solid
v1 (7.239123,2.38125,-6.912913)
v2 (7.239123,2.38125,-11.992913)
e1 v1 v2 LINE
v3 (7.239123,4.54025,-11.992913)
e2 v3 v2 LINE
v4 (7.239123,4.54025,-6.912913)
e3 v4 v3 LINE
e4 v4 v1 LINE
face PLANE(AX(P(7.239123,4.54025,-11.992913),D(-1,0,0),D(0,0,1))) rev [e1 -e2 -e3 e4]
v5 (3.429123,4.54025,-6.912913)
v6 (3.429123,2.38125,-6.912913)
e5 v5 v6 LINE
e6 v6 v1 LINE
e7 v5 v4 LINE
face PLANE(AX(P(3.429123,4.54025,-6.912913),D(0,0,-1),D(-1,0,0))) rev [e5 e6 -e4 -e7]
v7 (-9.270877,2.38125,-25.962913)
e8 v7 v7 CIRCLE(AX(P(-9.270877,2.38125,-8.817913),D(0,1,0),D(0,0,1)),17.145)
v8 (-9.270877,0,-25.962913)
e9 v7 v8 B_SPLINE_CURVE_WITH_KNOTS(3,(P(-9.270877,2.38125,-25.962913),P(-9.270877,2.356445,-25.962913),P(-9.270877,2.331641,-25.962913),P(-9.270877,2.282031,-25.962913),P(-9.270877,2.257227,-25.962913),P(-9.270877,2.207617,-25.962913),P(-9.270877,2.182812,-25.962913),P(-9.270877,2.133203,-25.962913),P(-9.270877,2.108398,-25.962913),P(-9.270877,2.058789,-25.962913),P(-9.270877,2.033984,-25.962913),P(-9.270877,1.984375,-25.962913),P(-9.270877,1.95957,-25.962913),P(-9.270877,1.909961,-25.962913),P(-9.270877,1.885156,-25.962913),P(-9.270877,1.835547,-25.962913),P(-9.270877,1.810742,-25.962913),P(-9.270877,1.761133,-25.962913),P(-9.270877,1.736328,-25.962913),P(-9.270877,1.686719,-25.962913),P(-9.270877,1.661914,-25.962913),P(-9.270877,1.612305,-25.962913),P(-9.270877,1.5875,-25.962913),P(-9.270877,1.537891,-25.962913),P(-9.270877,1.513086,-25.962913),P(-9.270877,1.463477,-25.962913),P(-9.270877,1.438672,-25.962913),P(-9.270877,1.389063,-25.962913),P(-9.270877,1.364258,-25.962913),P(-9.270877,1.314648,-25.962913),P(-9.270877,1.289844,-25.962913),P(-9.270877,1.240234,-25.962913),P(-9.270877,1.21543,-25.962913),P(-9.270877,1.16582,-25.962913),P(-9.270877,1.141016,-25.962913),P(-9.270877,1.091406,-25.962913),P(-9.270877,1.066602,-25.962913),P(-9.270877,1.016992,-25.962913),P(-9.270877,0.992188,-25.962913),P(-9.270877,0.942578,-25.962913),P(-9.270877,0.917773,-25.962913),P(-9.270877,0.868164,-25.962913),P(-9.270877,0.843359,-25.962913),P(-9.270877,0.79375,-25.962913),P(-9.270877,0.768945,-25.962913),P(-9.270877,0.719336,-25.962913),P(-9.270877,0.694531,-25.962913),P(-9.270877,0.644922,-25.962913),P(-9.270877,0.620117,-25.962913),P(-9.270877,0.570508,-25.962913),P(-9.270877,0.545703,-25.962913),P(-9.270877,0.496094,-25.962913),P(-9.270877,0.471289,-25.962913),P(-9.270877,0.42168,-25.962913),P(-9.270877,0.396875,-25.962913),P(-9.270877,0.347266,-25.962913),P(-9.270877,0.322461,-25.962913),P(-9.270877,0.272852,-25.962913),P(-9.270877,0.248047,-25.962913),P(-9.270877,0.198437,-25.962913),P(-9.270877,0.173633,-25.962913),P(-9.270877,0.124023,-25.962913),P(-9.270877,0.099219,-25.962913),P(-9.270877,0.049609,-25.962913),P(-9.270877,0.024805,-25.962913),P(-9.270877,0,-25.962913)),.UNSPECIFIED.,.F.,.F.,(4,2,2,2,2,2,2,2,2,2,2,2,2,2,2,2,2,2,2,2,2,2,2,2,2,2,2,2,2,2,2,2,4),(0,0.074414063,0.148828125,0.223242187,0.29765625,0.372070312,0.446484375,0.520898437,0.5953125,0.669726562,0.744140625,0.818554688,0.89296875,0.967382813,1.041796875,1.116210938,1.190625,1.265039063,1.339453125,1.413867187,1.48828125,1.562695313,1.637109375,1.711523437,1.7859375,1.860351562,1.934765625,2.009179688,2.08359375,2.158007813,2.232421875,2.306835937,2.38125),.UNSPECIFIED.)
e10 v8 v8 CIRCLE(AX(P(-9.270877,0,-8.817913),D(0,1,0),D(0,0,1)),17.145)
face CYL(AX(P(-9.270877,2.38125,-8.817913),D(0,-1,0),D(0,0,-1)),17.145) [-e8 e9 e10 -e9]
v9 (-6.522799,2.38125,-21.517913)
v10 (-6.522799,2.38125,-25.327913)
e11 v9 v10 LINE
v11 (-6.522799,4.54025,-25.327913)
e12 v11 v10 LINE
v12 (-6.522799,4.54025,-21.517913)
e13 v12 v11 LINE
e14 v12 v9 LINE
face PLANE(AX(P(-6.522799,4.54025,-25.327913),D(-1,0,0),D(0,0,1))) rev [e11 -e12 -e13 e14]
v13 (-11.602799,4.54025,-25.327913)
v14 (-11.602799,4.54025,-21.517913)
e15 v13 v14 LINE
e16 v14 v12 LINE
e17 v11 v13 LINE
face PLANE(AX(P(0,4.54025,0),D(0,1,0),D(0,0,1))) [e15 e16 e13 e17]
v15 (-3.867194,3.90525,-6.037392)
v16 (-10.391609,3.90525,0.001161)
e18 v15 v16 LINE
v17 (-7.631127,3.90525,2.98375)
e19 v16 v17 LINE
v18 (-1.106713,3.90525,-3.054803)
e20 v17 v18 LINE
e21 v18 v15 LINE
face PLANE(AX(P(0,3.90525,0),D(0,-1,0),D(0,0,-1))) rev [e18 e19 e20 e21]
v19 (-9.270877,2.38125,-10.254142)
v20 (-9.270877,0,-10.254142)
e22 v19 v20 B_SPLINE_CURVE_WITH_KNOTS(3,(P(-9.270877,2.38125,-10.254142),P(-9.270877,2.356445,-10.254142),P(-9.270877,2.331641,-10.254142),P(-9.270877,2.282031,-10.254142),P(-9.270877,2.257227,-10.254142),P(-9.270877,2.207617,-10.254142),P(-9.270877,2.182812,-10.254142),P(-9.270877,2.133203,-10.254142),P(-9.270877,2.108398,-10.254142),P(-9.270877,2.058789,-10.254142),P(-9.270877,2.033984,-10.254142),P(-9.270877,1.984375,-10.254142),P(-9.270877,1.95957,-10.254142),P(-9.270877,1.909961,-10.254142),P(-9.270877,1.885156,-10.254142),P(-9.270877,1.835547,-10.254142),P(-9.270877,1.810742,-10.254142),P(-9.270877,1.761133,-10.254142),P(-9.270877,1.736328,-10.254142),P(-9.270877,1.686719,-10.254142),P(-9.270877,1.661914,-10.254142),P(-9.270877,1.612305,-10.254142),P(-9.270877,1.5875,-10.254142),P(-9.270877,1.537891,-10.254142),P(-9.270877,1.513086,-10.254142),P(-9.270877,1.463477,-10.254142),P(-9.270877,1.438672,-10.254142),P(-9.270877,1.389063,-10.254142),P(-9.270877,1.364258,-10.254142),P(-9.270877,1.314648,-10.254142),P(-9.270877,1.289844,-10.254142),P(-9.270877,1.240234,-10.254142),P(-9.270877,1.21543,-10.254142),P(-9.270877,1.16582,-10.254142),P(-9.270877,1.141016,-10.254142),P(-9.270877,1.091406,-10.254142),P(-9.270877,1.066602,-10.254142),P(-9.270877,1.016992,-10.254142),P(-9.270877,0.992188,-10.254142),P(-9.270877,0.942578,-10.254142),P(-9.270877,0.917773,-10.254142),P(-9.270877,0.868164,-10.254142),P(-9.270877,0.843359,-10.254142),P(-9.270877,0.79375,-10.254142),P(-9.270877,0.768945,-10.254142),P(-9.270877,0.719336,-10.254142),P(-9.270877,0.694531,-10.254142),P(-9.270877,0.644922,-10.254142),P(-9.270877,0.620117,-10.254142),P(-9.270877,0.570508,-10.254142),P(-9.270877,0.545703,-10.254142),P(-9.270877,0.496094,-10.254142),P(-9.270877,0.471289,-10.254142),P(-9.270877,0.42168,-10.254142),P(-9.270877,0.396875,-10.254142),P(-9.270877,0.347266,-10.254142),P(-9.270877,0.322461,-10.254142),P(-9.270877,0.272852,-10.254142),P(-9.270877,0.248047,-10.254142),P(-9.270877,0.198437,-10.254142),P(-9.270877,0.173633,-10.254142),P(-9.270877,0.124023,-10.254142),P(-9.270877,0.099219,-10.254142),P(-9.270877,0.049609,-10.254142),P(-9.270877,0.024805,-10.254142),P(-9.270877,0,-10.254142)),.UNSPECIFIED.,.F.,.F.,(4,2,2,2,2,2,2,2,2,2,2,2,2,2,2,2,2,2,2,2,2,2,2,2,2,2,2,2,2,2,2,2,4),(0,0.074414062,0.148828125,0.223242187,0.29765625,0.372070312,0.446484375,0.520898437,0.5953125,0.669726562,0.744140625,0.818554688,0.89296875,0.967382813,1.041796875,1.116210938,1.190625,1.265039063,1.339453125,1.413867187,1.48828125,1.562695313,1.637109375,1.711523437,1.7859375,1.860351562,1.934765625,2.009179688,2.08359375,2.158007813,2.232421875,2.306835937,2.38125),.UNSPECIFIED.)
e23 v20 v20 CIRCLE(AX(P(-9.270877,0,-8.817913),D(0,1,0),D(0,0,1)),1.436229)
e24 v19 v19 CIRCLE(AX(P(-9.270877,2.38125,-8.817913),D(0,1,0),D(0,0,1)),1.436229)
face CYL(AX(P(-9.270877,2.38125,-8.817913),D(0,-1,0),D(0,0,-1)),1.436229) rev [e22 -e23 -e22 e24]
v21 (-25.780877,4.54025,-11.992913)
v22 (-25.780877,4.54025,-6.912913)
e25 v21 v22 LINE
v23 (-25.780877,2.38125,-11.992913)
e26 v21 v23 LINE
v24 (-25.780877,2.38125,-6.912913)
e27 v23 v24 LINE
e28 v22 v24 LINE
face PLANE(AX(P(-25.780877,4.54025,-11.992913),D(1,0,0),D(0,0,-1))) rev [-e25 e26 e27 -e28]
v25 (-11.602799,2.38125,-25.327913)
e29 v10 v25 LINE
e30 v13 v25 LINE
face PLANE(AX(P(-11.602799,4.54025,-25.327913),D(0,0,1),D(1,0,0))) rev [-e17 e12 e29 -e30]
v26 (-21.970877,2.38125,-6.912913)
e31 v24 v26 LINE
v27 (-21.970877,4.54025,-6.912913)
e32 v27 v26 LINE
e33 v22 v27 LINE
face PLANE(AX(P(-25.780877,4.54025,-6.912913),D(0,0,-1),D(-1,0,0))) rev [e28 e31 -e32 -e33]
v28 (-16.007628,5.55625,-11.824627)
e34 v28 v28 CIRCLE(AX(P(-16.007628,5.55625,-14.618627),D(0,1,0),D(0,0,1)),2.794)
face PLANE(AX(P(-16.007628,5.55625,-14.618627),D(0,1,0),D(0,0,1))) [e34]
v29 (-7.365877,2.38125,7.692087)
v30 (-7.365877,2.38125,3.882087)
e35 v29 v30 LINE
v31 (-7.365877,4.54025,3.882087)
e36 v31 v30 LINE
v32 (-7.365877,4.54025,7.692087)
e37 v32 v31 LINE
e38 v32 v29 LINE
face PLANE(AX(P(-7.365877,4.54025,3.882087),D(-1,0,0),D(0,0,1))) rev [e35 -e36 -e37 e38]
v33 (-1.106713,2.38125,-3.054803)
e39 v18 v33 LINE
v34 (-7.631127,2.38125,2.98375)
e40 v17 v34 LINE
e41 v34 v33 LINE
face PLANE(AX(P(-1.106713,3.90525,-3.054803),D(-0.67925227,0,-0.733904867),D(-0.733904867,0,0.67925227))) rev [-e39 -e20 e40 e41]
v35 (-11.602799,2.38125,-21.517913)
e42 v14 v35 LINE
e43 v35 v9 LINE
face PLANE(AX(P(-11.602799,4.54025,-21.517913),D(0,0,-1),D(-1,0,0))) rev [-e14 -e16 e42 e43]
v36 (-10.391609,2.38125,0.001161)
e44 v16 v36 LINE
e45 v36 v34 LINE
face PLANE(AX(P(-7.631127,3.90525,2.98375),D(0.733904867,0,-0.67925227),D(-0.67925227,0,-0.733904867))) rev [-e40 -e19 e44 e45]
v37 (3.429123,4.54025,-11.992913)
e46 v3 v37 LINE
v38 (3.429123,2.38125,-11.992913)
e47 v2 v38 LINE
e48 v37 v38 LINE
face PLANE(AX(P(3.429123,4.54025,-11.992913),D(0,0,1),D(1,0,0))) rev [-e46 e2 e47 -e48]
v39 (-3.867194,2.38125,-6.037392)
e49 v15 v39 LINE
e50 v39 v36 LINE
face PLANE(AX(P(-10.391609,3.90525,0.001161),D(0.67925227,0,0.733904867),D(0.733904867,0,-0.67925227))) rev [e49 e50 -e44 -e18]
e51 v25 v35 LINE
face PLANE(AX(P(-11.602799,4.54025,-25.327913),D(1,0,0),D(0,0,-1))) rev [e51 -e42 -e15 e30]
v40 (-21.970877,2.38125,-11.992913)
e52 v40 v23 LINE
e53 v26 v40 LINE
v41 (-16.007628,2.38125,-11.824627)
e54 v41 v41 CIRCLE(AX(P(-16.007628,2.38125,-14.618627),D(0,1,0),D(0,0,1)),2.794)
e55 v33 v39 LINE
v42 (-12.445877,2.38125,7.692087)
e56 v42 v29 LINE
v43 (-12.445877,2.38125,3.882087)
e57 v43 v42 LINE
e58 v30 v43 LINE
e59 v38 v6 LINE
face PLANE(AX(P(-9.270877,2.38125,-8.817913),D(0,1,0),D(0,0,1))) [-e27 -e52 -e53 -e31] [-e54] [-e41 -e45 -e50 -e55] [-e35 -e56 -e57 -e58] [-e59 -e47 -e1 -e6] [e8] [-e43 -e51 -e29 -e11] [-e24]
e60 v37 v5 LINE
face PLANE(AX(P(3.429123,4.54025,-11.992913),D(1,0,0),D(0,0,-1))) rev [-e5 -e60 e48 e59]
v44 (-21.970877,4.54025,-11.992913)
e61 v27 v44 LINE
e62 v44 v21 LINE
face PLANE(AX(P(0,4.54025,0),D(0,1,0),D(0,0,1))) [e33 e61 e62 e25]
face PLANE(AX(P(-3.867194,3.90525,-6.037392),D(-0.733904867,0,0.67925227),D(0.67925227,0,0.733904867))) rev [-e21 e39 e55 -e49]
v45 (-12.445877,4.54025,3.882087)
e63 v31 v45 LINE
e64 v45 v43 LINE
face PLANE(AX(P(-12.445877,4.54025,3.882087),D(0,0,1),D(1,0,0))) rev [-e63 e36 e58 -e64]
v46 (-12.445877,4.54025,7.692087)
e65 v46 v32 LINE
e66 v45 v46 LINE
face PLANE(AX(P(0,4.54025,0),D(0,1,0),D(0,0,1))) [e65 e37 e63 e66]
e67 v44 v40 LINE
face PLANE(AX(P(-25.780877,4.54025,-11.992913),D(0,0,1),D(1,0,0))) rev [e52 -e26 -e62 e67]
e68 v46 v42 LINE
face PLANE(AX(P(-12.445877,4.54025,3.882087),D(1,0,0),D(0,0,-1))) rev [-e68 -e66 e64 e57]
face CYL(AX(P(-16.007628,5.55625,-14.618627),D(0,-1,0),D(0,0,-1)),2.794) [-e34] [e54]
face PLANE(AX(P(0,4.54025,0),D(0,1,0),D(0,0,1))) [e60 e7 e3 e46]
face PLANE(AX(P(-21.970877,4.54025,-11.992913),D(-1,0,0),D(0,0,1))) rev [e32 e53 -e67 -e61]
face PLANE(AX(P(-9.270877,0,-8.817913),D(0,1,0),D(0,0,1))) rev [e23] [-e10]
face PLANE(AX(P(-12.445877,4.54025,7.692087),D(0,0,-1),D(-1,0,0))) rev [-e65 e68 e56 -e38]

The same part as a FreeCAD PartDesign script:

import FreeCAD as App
import Part
import Sketcher

V = App.Vector
Q = App.Units.Quantity

doc = App.newDocument("Part")
body = doc.addObject("PartDesign::Body", "Body")

# Sketch on XZ plane
sketch1 = body.newObject("Sketcher::SketchObject", "Sketch")
sketch1.AttachmentSupport = (doc.getObject("XZ_Plane"), [""])
sketch1.MapMode = "FlatFace"
sketch1.addGeometry([
    Part.Circle(V(-9.3, -8.8, 0), V(0, 0, 1), 17.1),
    Part.Circle(V(-9.3, -8.8, 0), V(0, 0, 1), 1.4),
], False)
sketch1.addConstraint([
    Sketcher.Constraint("Coincident", 1, 3, 0, 3),
    Sketcher.Constraint("Diameter", 0, Q("1.35 in")),
    Sketcher.Constraint("Diameter", 1, Q("2.872458 mm")),
    Sketcher.Constraint("DistanceX", 0, 3, -1, 1, Q("9.270877 mm")),
    Sketcher.Constraint("DistanceY", 0, 3, -1, 1, Q("8.817913 mm")),
])
pad1 = body.newObject("PartDesign::Pad", "Pad")
pad1.Profile = sketch1
pad1.Length = Q("0.09375 in")
pad1.Reversed = True

# Sketch on XZ plane
sketch2 = body.newObject("Sketcher::SketchObject", "Sketch001")
sketch2.AttachmentSupport = (doc.getObject("XZ_Plane"), [""])
sketch2.MapMode = "FlatFace"
sketch2.AttachmentOffset = App.Placement(V(0, 0, -0.09375 * 25.4), App.Rotation())
sketch2.addGeometry(Part.Circle(V(-16, -14.6, 0), V(0, 0, 1), 2.8), False)
sketch2.addConstraint([
    Sketcher.Constraint("Diameter", 0, Q("0.22 in")),
    Sketcher.Constraint("DistanceX", 0, 3, -1, 1, Q("16.007628 mm")),
    Sketcher.Constraint("DistanceY", 0, 3, -1, 1, Q("14.618627 mm")),
])
pad2 = body.newObject("PartDesign::Pad", "Pad001")
pad2.Profile = sketch2
pad2.Length = Q("0.125 in")
pad2.Reversed = True

# Sketch on XZ plane
sketch3 = body.newObject("Sketcher::SketchObject", "Sketch002")
sketch3.AttachmentSupport = (doc.getObject("XZ_Plane"), [""])
sketch3.MapMode = "FlatFace"
sketch3.AttachmentOffset = App.Placement(V(0, 0, -0.09375 * 25.4), App.Rotation())
sketch3.addGeometry([
    Part.LineSegment(V(-3.9, -6, 0), V(-10.4, 0, 0)),  # 0
    Part.LineSegment(V(-10.4, 0, 0), V(-10, 0.4, 0)),  # 1
    Part.LineSegment(V(-10, 0.4, 0), V(-7.6, 3, 0)),  # 2
    Part.LineSegment(V(-7.6, 3, 0), V(-1.1, -3.1, 0)),  # 3
    Part.LineSegment(V(-1.1, -3.1, 0), V(-3.9, -6, 0)),  # 4
], False)
sketch3.addConstraint([
    Sketcher.Constraint("Coincident", 0, 2, 1, 1),
    Sketcher.Constraint("Coincident", 1, 2, 2, 1),
    Sketcher.Constraint("Coincident", 2, 2, 3, 1),
    Sketcher.Constraint("Coincident", 3, 2, 4, 1),
    Sketcher.Constraint("Coincident", 4, 2, 0, 1),
    Sketcher.Constraint("Perpendicular", 0, 1),
    Sketcher.Constraint("Parallel", 1, 2),
    Sketcher.Constraint("Perpendicular", 2, 3),
    Sketcher.Constraint("Perpendicular", 3, 4),
    Sketcher.Constraint("Distance", 0, Q("0.35 in")),
    Sketcher.Constraint("Distance", 1, Q("0.02 in")),
    Sketcher.Constraint("Distance", 2, Q("0.14 in")),
    Sketcher.Constraint("DistanceX", 0, 2, -1, 1, Q("10.391609 mm")),
    Sketcher.Constraint("DistanceY", -1, 1, 0, 2, Q("0.001161 mm")),
    Sketcher.Constraint("DistanceX", 1, 2, -1, 1, Q("10.046549 mm")),
])
pad3 = body.newObject("PartDesign::Pad", "Pad002")
pad3.Profile = sketch3
pad3.Length = Q("0.06 in")
pad3.Reversed = True

# Sketch on XZ plane
sketch4 = body.newObject("Sketcher::SketchObject", "Sketch003")
sketch4.AttachmentSupport = (doc.getObject("XZ_Plane"), [""])
sketch4.MapMode = "FlatFace"
sketch4.AttachmentOffset = App.Placement(V(0, 0, -0.09375 * 25.4), App.Rotation())
sketch4.addGeometry([
    Part.LineSegment(V(-12.4, 3.9, 0), V(-12.4, 7.7, 0)),  # 0
    Part.LineSegment(V(-12.4, 7.7, 0), V(-7.4, 7.7, 0)),  # 1
    Part.LineSegment(V(-7.4, 7.7, 0), V(-7.4, 3.9, 0)),  # 2
    Part.LineSegment(V(-7.4, 3.9, 0), V(-12.4, 3.9, 0)),  # 3
    Part.LineSegment(V(-11.6, -25.3, 0), V(-11.6, -21.5, 0)),  # 4
    Part.LineSegment(V(-11.6, -21.5, 0), V(-6.5, -21.5, 0)),  # 5
    Part.LineSegment(V(-6.5, -21.5, 0), V(-6.5, -25.3, 0)),  # 6
    Part.LineSegment(V(-6.5, -25.3, 0), V(-11.6, -25.3, 0)),  # 7
    Part.LineSegment(V(-25.8, -12, 0), V(-25.8, -6.9, 0)),  # 8
    Part.LineSegment(V(-25.8, -6.9, 0), V(-22, -6.9, 0)),  # 9
    Part.LineSegment(V(-22, -6.9, 0), V(-22, -12, 0)),  # 10
    Part.LineSegment(V(-22, -12, 0), V(-25.8, -12, 0)),  # 11
    Part.LineSegment(V(3.4, -12, 0), V(3.4, -6.9, 0)),  # 12
    Part.LineSegment(V(3.4, -6.9, 0), V(7.2, -6.9, 0)),  # 13
    Part.LineSegment(V(7.2, -6.9, 0), V(7.2, -12, 0)),  # 14
    Part.LineSegment(V(7.2, -12, 0), V(3.4, -12, 0)),  # 15
], False)
sketch4.addConstraint([
    Sketcher.Constraint("Coincident", 0, 2, 1, 1),
    Sketcher.Constraint("Coincident", 1, 2, 2, 1),
    Sketcher.Constraint("Coincident", 2, 2, 3, 1),
    Sketcher.Constraint("Coincident", 3, 2, 0, 1),
    Sketcher.Constraint("Coincident", 4, 2, 5, 1),
    Sketcher.Constraint("Coincident", 5, 2, 6, 1),
    Sketcher.Constraint("Coincident", 6, 2, 7, 1),
    Sketcher.Constraint("Coincident", 7, 2, 4, 1),
    Sketcher.Constraint("Coincident", 8, 2, 9, 1),
    Sketcher.Constraint("Coincident", 9, 2, 10, 1),
    Sketcher.Constraint("Coincident", 10, 2, 11, 1),
    Sketcher.Constraint("Coincident", 11, 2, 8, 1),
    Sketcher.Constraint("Coincident", 12, 2, 13, 1),
    Sketcher.Constraint("Coincident", 13, 2, 14, 1),
    Sketcher.Constraint("Coincident", 14, 2, 15, 1),
    Sketcher.Constraint("Coincident", 15, 2, 12, 1),
    Sketcher.Constraint("Vertical", 0),
    Sketcher.Constraint("Horizontal", 1),
    Sketcher.Constraint("Vertical", 2),
    Sketcher.Constraint("Horizontal", 3),
    Sketcher.Constraint("Vertical", 4),
    Sketcher.Constraint("Horizontal", 5),
    Sketcher.Constraint("Vertical", 6),
    Sketcher.Constraint("Horizontal", 7),
    Sketcher.Constraint("Vertical", 8),
    Sketcher.Constraint("Horizontal", 9),
    Sketcher.Constraint("Vertical", 10),
    Sketcher.Constraint("Horizontal", 11),
    Sketcher.Constraint("Vertical", 12),
    Sketcher.Constraint("Horizontal", 13),
    Sketcher.Constraint("Vertical", 14),
    Sketcher.Constraint("Horizontal", 15),
    Sketcher.Constraint("Horizontal", 9, 2, 12, 2),
    Sketcher.Constraint("Horizontal", 11, 2, 14, 2),
    Sketcher.Constraint("Equal", 3, 5),
    Sketcher.Constraint("Equal", 11, 13),
    Sketcher.Constraint("Equal", 15, 0),
    Sketcher.Constraint("Equal", 2, 4),
    Sketcher.Constraint("Equal", 7, 8),
    Sketcher.Constraint("DistanceX", 1, 1, 1, 2, Q("0.2 in")),
    Sketcher.Constraint("DistanceY", 4, 2, 3, 2, Q("1 in")),
    Sketcher.Constraint("DistanceX", 9, 1, 9, 2, Q("0.15 in")),
    Sketcher.Constraint("DistanceX", 8, 2, 3, 2, Q("0.525 in")),
    Sketcher.Constraint("DistanceY", 8, 2, 3, 2, Q("0.425 in")),
    Sketcher.Constraint("DistanceX", 2, 2, 12, 2, Q("0.425 in")),
    Sketcher.Constraint("DistanceX", 4, 2, -1, 1, Q("11.602799 mm")),
    Sketcher.Constraint("DistanceX", 0, 2, -1, 1, Q("12.445877 mm")),
    Sketcher.Constraint("DistanceY", -1, 1, 0, 2, Q("7.692087 mm")),
])
pad4 = body.newObject("PartDesign::Pad", "Pad003")
pad4.Profile = sketch4
pad4.Length = Q("0.085 in")
pad4.Reversed = True

doc.recompute()
